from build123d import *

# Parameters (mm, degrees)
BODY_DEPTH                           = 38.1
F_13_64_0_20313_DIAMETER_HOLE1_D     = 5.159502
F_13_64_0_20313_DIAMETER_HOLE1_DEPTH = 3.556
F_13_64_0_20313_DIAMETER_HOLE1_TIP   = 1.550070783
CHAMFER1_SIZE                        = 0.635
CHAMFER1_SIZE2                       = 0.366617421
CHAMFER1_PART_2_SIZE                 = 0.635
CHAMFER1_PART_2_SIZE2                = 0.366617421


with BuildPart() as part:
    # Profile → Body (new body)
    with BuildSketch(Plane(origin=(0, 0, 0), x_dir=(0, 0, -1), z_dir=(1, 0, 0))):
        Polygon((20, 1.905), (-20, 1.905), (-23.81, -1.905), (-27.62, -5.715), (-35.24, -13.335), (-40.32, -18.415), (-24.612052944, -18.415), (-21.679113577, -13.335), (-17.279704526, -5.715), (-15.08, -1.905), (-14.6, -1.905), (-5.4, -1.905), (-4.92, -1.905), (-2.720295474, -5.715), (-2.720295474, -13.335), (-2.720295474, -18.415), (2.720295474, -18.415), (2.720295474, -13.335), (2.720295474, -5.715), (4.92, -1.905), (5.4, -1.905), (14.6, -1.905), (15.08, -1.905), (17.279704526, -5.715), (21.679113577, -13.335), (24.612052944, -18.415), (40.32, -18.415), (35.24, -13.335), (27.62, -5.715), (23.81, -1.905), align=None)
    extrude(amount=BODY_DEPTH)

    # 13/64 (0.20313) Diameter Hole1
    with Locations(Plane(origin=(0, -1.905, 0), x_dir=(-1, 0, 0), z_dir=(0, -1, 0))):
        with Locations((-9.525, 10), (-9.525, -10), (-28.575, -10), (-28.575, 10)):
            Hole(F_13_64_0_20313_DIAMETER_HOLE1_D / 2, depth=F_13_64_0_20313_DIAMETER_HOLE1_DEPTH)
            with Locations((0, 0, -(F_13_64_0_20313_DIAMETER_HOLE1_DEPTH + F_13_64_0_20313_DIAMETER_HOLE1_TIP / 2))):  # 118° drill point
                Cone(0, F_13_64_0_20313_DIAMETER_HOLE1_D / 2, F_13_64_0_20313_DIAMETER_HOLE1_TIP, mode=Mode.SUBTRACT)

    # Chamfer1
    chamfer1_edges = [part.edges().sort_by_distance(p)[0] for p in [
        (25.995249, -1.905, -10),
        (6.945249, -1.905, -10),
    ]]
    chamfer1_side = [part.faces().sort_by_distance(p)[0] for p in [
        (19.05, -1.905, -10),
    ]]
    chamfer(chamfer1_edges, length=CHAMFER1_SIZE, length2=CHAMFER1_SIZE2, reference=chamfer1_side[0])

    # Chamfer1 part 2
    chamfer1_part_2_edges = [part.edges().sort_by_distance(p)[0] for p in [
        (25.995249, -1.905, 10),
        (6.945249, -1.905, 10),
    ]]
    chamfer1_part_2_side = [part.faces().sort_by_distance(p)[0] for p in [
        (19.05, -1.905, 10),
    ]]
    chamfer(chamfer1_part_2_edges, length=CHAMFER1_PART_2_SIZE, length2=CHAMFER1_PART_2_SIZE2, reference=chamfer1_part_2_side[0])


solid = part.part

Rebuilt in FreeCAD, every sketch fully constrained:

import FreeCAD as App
import Part
import Sketcher
from FreeCAD import Vector
Q = App.Units.Quantity


def edges_at(feature, points):
    """Names of the edges that pass closest to the given points."""
    edges = feature.Shape.Edges
    near = lambda p: min(range(len(edges)), key=lambda i: edges[i].distToShape(Part.Vertex(*p))[0])
    return sorted({f"Edge{near(p) + 1}" for p in points})


def add_polygon(sketch, points):
    """Adds a closed chain of lines whose ends are joined by coincident constraints."""
    first, n = sketch.GeometryCount, len(points)
    for a, b in zip(points, points[1:] + points[:1]):
        sketch.addGeometry(Part.LineSegment(App.Vector(*a, 0), App.Vector(*b, 0)), False)
    for i in range(n):
        sketch.addConstraint(Sketcher.Constraint("Coincident", first + i, 2, first + (i + 1) % n, 1))

doc = App.newDocument("Part")
params = doc.addObject("Spreadsheet::Sheet", "Params")
for row, (alias, value) in enumerate([
    ("sketch1_width", "0.5 in"),
    ("sketch1_height", "0.4 in"),
    ("pad1_length", "1.5 in"),
    ("hole_diameter", "5.159502 mm"),
    ("hole_depth", "0.14 in"),
    ("chamfer_size", "0.025 in"),
    ("chamfer_size2", "0.366617 mm"),
    ("chamfer2_size", "0.025 in"),
    ("chamfer2_size2", "0.366617 mm"),
], start=1):
    params.set(f"A{row}", alias)
    params.set(f"B{row}", "=" + value)
    params.setAlias(f"B{row}", alias)

body = doc.addObject("PartDesign::Body", "Body")

sketch1 = body.newObject("Sketcher::SketchObject", "Sketch")
sketch1.AttachmentSupport = (doc.getObject("YZ_Plane"), [""])
sketch1.MapMode = "FlatFace"
add_polygon(sketch1, [(1.9, -20), (1.9, 20), (-18.4, 40.3), (-18.4, 24.6), (-13.3, 21.7), (-5.7, 17.3), (-1.9, 15.1), (-1.9, 4.9), (-5.7, 2.7), (-18.4, 2.7), (-18.4, -2.7), (-5.7, -2.7), (-1.9, -4.9), (-1.9, -15.1), (-5.7, -17.3), (-13.3, -21.7), (-18.4, -24.6), (-18.4, -40.3)])
sketch1.addConstraint(Sketcher.Constraint("Vertical", 0))
sketch1.addConstraint(Sketcher.Constraint("Vertical", 2))
sketch1.addConstraint(Sketcher.Constraint("Vertical", 6))
sketch1.addConstraint(Sketcher.Constraint("Horizontal", 8))
sketch1.addConstraint(Sketcher.Constraint("Vertical", 9))
sketch1.addConstraint(Sketcher.Constraint("Horizontal", 10))
sketch1.addConstraint(Sketcher.Constraint("Vertical", 12))
sketch1.addConstraint(Sketcher.Constraint("Vertical", 16))
sketch1.addConstraint(Sketcher.Constraint("Symmetric", 7, 2, 10, 2, -1))
sketch1.addConstraint(Sketcher.Constraint("Symmetric", 6, 2, 11, 2, -1))
sketch1.addConstraint(Sketcher.Constraint("Symmetric", 4, 2, 13, 2, -1))
sketch1.addConstraint(Sketcher.Constraint("Symmetric", 3, 2, 14, 2, -1))
sketch1.addConstraint(Sketcher.Constraint("Symmetric", 2, 2, 15, 2, -1))
sketch1.addConstraint(Sketcher.Constraint("Parallel", 3, 4))
sketch1.addConstraint(Sketcher.Constraint("Parallel", 4, 5))
sketch1.addConstraint(Sketcher.Constraint("Parallel", 5, 11))
sketch1.addConstraint(Sketcher.Constraint("Parallel", 7, 13))
sketch1.addConstraint(Sketcher.Constraint("Perpendicular", 1, 17))
sketch1.addConstraint(Sketcher.Constraint("Vertical", 4, 2, 7, 2))
sketch1.addConstraint(Sketcher.Constraint("Vertical", 2, 2, 8, 2))
sketch1.addConstraint(Sketcher.Constraint("Equal", 2, 16))
sketch1.addConstraint(Sketcher.Constraint("Equal", 1, 17))
sketch1.addConstraint(Sketcher.Constraint("DistanceX", 8, 2, 8, 1, Q("0.5 in")))
sketch1.addConstraint(Sketcher.Constraint("DistanceY", 6, 2, 6, 1, Q("0.4 in")))
sketch1.addConstraint(Sketcher.Constraint("Angle", 3, Q("-30 deg")))
sketch1.addConstraint(Sketcher.Constraint("DistanceX", 1, 2, 0, 2, Q("0.8 in")))
sketch1.addConstraint(Sketcher.Constraint("DistanceX", 2, 2, 3, 2, Q("0.2 in")))
sketch1.addConstraint(Sketcher.Constraint("DistanceX", 4, 2, 5, 2, Q("0.15 in")))
sketch1.addConstraint(Sketcher.Constraint("DistanceX", -1, 1, 0, 2, Q("0.075 in")))
sketch1.addConstraint(Sketcher.Constraint("DistanceY", 0, 1, 0, 2, Q("40 mm")))
sketch1.addConstraint(Sketcher.Constraint("DistanceY", 9, 2, 9, 1, Q("5.440591 mm")))
sketch1.setExpression("Constraints[40]", "Params.sketch1_width")
sketch1.setExpression("Constraints[41]", "Params.sketch1_height")
pad1 = body.newObject("PartDesign::Pad", "Pad")
pad1.Profile = sketch1
pad1.setExpression("Length", "Params.pad1_length")

sketch2 = body.newObject("Sketcher::SketchObject", "Sketch001")
sketch2.AttachmentSupport = (doc.getObject("XZ_Plane"), [""])
sketch2.MapMode = "FlatFace"
sketch2.AttachmentOffset = App.Placement(Vector(0, 0, 0.075 * 25.4), App.Rotation())
sketch2.addGeometry(Part.Circle(Vector(9.5, -10, 0), Vector(0, 0, 1), 2.6), False)
sketch2.addGeometry(Part.Circle(Vector(9.5, 10, 0), Vector(0, 0, 1), 2.6), False)
sketch2.addGeometry(Part.Circle(Vector(28.6, 10, 0), Vector(0, 0, 1), 2.6), False)
sketch2.addGeometry(Part.Circle(Vector(28.6, -10, 0), Vector(0, 0, 1), 2.6), False)
sketch2.addConstraint(Sketcher.Constraint("Equal", 0, 1))
sketch2.addConstraint(Sketcher.Constraint("Equal", 1, 2))
sketch2.addConstraint(Sketcher.Constraint("Equal", 2, 3))
sketch2.addConstraint(Sketcher.Constraint("Symmetric", 0, 3, 1, 3, -1))
sketch2.addConstraint(Sketcher.Constraint("Symmetric", 2, 3, 3, 3, -1))
sketch2.addConstraint(Sketcher.Constraint("Horizontal", 1, 3, 2, 3))
sketch2.addConstraint(Sketcher.Constraint("Diameter", 0, Q("5.159502 mm")))
sketch2.addConstraint(Sketcher.Constraint("DistanceX", 1, 3, 2, 3, Q("0.75 in")))
sketch2.addConstraint(Sketcher.Constraint("DistanceX", -1, 1, 0, 3, Q("0.375 in")))
sketch2.addConstraint(Sketcher.Constraint("DistanceY", 0, 3, -1, 1, Q("10 mm")))
doc.recompute()
hole = body.newObject("PartDesign::Hole", "Hole")
hole.Profile = sketch2
hole.ThreadType = "None"
hole.setExpression("Diameter", "Params.hole_diameter")
hole.DepthType = "Dimension"
hole.setExpression("Depth", "Params.hole_depth")
hole.DrillPoint = "Angled"
hole.DrillPointAngle = 118
doc.recompute()

chamfer = body.newObject("PartDesign::Chamfer", "Chamfer")
chamfer.Base = (hole, edges_at(hole, [(25.995, -1.905, -10), (6.945, -1.905, -10)]))
chamfer.ChamferType = "Two distances"
chamfer.setExpression("Size", "Params.chamfer_size")
chamfer.setExpression("Size2", "Params.chamfer_size2")
doc.recompute()

chamfer2 = body.newObject("PartDesign::Chamfer", "Chamfer001")
chamfer2.Base = (chamfer, edges_at(chamfer, [(25.995, -1.905, 10), (6.945, -1.905, 10)]))
chamfer2.ChamferType = "Two distances"
chamfer2.setExpression("Size", "Params.chamfer2_size")
chamfer2.setExpression("Size2", "Params.chamfer2_size2")

doc.recompute()
